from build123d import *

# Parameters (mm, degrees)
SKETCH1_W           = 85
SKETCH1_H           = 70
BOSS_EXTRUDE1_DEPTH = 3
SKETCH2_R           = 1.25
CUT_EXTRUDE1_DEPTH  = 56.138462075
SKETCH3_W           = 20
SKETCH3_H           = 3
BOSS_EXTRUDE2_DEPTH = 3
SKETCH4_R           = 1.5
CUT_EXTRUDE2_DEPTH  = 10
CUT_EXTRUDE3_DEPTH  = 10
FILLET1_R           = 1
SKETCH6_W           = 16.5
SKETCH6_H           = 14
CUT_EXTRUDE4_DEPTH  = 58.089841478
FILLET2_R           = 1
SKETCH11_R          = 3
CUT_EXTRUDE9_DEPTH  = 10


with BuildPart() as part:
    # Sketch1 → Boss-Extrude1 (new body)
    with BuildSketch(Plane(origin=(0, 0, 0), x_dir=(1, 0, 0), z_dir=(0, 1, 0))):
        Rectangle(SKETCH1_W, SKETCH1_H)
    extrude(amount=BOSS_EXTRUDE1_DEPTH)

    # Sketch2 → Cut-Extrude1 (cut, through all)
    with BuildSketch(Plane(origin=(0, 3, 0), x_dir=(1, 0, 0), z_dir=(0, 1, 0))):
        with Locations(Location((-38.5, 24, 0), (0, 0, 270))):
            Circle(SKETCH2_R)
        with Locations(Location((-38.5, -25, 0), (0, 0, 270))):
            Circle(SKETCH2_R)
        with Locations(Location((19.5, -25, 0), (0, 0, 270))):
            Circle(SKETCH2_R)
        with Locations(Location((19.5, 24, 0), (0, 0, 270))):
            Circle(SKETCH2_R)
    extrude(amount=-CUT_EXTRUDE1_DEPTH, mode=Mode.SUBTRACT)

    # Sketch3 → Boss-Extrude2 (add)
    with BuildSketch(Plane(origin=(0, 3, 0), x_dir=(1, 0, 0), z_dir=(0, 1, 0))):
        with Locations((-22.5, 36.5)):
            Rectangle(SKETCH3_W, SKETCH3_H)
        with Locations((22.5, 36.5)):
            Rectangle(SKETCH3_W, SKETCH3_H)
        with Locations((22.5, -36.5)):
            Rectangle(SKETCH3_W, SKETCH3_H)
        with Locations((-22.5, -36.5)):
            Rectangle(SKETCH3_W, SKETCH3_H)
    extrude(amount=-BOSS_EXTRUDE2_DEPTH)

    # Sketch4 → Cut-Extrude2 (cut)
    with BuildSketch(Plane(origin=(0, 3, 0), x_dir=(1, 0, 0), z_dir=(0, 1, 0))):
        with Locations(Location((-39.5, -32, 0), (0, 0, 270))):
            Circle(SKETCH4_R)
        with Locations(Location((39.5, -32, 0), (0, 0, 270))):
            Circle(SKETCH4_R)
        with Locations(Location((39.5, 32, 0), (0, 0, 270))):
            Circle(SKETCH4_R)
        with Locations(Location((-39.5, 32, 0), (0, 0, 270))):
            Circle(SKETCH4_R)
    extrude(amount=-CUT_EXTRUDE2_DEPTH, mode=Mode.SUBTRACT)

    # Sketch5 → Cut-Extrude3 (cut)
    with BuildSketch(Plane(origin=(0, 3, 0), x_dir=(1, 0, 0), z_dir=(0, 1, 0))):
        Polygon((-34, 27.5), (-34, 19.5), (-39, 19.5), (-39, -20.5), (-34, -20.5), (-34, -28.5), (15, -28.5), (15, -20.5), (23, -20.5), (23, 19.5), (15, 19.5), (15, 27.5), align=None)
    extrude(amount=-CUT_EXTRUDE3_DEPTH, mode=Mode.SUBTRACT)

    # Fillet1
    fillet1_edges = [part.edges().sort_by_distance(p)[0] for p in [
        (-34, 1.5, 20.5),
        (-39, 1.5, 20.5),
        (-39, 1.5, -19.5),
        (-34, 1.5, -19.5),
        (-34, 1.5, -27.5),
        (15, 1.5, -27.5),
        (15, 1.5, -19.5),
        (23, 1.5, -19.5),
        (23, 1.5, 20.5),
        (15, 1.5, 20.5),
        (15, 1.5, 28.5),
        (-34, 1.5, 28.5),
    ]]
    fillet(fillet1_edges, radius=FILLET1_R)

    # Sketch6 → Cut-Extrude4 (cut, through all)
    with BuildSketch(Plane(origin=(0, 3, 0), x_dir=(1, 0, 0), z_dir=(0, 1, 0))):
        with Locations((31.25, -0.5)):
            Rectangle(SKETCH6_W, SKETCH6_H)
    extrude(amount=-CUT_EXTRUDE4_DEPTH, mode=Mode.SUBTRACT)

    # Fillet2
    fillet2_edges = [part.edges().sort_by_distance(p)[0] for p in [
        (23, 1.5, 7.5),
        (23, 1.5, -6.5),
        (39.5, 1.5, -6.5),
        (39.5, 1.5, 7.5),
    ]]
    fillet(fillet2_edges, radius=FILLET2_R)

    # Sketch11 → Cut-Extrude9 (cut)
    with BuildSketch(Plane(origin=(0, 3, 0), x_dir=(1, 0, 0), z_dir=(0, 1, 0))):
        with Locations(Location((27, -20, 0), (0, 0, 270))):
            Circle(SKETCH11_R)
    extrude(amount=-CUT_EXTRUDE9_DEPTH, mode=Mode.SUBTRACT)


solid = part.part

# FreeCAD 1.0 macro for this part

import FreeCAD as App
import Part
import Sketcher

V = App.Vector
Q = App.Units.Quantity


def edges_at(feature, points):
    """Names of the edges that pass closest to the given points."""
    edges = feature.Shape.Edges
    near = lambda p: min(range(len(edges)), key=lambda i: edges[i].distToShape(Part.Vertex(*p))[0])
    return sorted({f"Edge{near(p) + 1}" for p in points})

doc = App.newDocument("Part")
params = doc.addObject("Spreadsheet::Sheet", "Params")
for row, (alias, value) in enumerate([
    ("sketch1_width", "85 mm"),
    ("sketch1_height", "70 mm"),
    ("pad1_length", "3 mm"),
    ("sketch2_diameter", "2.5 mm"),
    ("sketch3_width", "20 mm"),
    ("sketch3_height", "3 mm"),
    ("pad2_length", "3 mm"),
    ("sketch4_diameter", "3 mm"),
    ("pocket2_length", "10 mm"),
    ("sketch5_width", "5 mm"),
    ("sketch5_width2", "49 mm"),
    ("sketch5_width3", "8 mm"),
    ("sketch5_height", "40 mm"),
    ("pocket3_length", "10 mm"),
    ("fillet_radius", "1 mm"),
    ("sketch6_height", "14 mm"),
    ("sketch6_width", "16.5 mm"),
    ("fillet2_radius", "1 mm"),
    ("sketch7_diameter", "6 mm"),
    ("pocket5_length", "10 mm"),
], start=1):
    params.set(f"A{row}", alias)
    params.set(f"B{row}", "=" + value)
    params.setAlias(f"B{row}", alias)

body = doc.addObject("PartDesign::Body", "Body")

sketch1 = body.newObject("Sketcher::SketchObject", "Sketch")
sketch1.AttachmentSupport = (doc.getObject("XZ_Plane"), [""])
sketch1.MapMode = "FlatFace"
sketch1.addGeometry([
    Part.LineSegment(V(-42, -35, 0), V(-42, 35, 0)),
    Part.LineSegment(V(-42, 35, 0), V(42, 35, 0)),
    Part.LineSegment(V(42, 35, 0), V(42, -35, 0)),
    Part.LineSegment(V(42, -35, 0), V(-42, -35, 0)),
], False)
sketch1.addConstraint([
    Sketcher.Constraint("Coincident", 0, 2, 1, 1),
    Sketcher.Constraint("Coincident", 1, 2, 2, 1),
    Sketcher.Constraint("Coincident", 2, 2, 3, 1),
    Sketcher.Constraint("Coincident", 3, 2, 0, 1),
    Sketcher.Constraint("Vertical", 0),
    Sketcher.Constraint("Horizontal", 1),
    Sketcher.Constraint("Vertical", 2),
    Sketcher.Constraint("Horizontal", 3),
    Sketcher.Constraint("Symmetric", 0, 2, 2, 2, -1, 1),
    Sketcher.Constraint("DistanceX", 1, 1, 1, 2, Q("85 mm")),
    Sketcher.Constraint("DistanceY", 0, 1, 0, 2, Q("70 mm")),
])
sketch1.setExpression("Constraints[9]", "Params.sketch1_width")
sketch1.setExpression("Constraints[10]", "Params.sketch1_height")
pad1 = body.newObject("PartDesign::Pad", "Pad")
pad1.Profile = sketch1
pad1.setExpression("Length", "Params.pad1_length")
pad1.Reversed = True

sketch2 = body.newObject("Sketcher::SketchObject", "Sketch001")
sketch2.AttachmentSupport = (doc.getObject("XZ_Plane"), [""])
sketch2.MapMode = "FlatFace"
sketch2.AttachmentOffset = App.Placement(V(0, 0, -3), App.Rotation())
sketch2.addGeometry([
    Part.Circle(V(-38.5, -24, 0), V(0, 0, 1), 1.2),
    Part.Circle(V(-38.5, 25, 0), V(0, 0, 1), 1.2),
    Part.Circle(V(19.5, 25, 0), V(0, 0, 1), 1.2),
    Part.Circle(V(19.5, -24, 0), V(0, 0, 1), 1.2),
], False)
sketch2.addConstraint([
    Sketcher.Constraint("Equal", 0, 1),
    Sketcher.Constraint("Equal", 1, 2),
    Sketcher.Constraint("Equal", 2, 3),
    Sketcher.Constraint("Horizontal", 1, 3, 2, 3),
    Sketcher.Constraint("Horizontal", 0, 3, 3, 3),
    Sketcher.Constraint("Vertical", 0, 3, 1, 3),
    Sketcher.Constraint("Vertical", 2, 3, 3, 3),
    Sketcher.Constraint("Diameter", 0, Q("2.5 mm")),
    Sketcher.Constraint("DistanceY", 0, 3, -1, 1, Q("24 mm")),
    Sketcher.Constraint("DistanceY", -1, 1, 1, 3, Q("25 mm")),
    Sketcher.Constraint("DistanceX", 1, 3, 2, 3, Q("58 mm")),
    Sketcher.Constraint("DistanceX", 0, 3, -1, 1, Q("38.5 mm")),
])
sketch2.setExpression("Constraints[7]", "Params.sketch2_diameter")
pocket1 = body.newObject("PartDesign::Pocket", "Pocket")
pocket1.Profile = sketch2
pocket1.Type = "ThroughAll"
pocket1.Reversed = True

sketch3 = body.newObject("Sketcher::SketchObject", "Sketch002")
sketch3.AttachmentSupport = (doc.getObject("XZ_Plane"), [""])
sketch3.MapMode = "FlatFace"
sketch3.AttachmentOffset = App.Placement(V(0, 0, -3), App.Rotation())
sketch3.addGeometry([
    Part.LineSegment(V(-32.5, -38, 0), V(-32.5, -35, 0)),
    Part.LineSegment(V(-32.5, -35, 0), V(-12.5, -35, 0)),
    Part.LineSegment(V(-12.5, -35, 0), V(-12.5, -38, 0)),
    Part.LineSegment(V(-12.5, -38, 0), V(-32.5, -38, 0)),
    Part.LineSegment(V(12.5, -38, 0), V(12.5, -35, 0)),
    Part.LineSegment(V(12.5, -35, 0), V(32.5, -35, 0)),
    Part.LineSegment(V(32.5, -35, 0), V(32.5, -38, 0)),
    Part.LineSegment(V(32.5, -38, 0), V(12.5, -38, 0)),
    Part.LineSegment(V(12.5, 35, 0), V(12.5, 38, 0)),
    Part.LineSegment(V(12.5, 38, 0), V(32.5, 38, 0)),
    Part.LineSegment(V(32.5, 38, 0), V(32.5, 35, 0)),
    Part.LineSegment(V(32.5, 35, 0), V(12.5, 35, 0)),
    Part.LineSegment(V(-32.5, 35, 0), V(-32.5, 38, 0)),
    Part.LineSegment(V(-32.5, 38, 0), V(-12.5, 38, 0)),
    Part.LineSegment(V(-12.5, 38, 0), V(-12.5, 35, 0)),
    Part.LineSegment(V(-12.5, 35, 0), V(-32.5, 35, 0)),
], False)
sketch3.addConstraint([
    Sketcher.Constraint("Coincident", 0, 2, 1, 1),
    Sketcher.Constraint("Coincident", 1, 2, 2, 1),
    Sketcher.Constraint("Coincident", 2, 2, 3, 1),
    Sketcher.Constraint("Coincident", 3, 2, 0, 1),
    Sketcher.Constraint("Coincident", 4, 2, 5, 1),
    Sketcher.Constraint("Coincident", 5, 2, 6, 1),
    Sketcher.Constraint("Coincident", 6, 2, 7, 1),
    Sketcher.Constraint("Coincident", 7, 2, 4, 1),
    Sketcher.Constraint("Coincident", 8, 2, 9, 1),
    Sketcher.Constraint("Coincident", 9, 2, 10, 1),
    Sketcher.Constraint("Coincident", 10, 2, 11, 1),
    Sketcher.Constraint("Coincident", 11, 2, 8, 1),
    Sketcher.Constraint("Coincident", 12, 2, 13, 1),
    Sketcher.Constraint("Coincident", 13, 2, 14, 1),
    Sketcher.Constraint("Coincident", 14, 2, 15, 1),
    Sketcher.Constraint("Coincident", 15, 2, 12, 1),
    Sketcher.Constraint("Vertical", 0),
    Sketcher.Constraint("Horizontal", 1),
    Sketcher.Constraint("Vertical", 2),
    Sketcher.Constraint("Horizontal", 3),
    Sketcher.Constraint("Vertical", 4),
    Sketcher.Constraint("Horizontal", 5),
    Sketcher.Constraint("Vertical", 6),
    Sketcher.Constraint("Horizontal", 7),
    Sketcher.Constraint("Vertical", 8),
    Sketcher.Constraint("Horizontal", 9),
    Sketcher.Constraint("Vertical", 10),
    Sketcher.Constraint("Horizontal", 11),
    Sketcher.Constraint("Vertical", 12),
    Sketcher.Constraint("Horizontal", 13),
    Sketcher.Constraint("Vertical", 14),
    Sketcher.Constraint("Horizontal", 15),
    Sketcher.Constraint("Symmetric", 2, 2, 8, 2, -1, 1),
    Sketcher.Constraint("Symmetric", 0, 2, 10, 2, -1, 1),
    Sketcher.Constraint("Symmetric", 6, 2, 12, 2, -1, 1),
    Sketcher.Constraint("Symmetric", 4, 2, 14, 2, -1, 1),
    Sketcher.Constraint("Symmetric", 1, 2, 4, 2, -2),
    Sketcher.Constraint("Symmetric", 3, 2, 6, 2, -2),
    Sketcher.Constraint("DistanceX", 1, 1, 1, 2, Q("20 mm")),
    Sketcher.Constraint("DistanceY", 0, 1, 0, 2, Q("3 mm")),
    Sketcher.Constraint("DistanceY", 0, 2, -1, 1, Q("35 mm")),
    Sketcher.Constraint("DistanceX", 1, 2, 4, 2, Q("25 mm")),
])
sketch3.setExpression("Constraints[38]", "Params.sketch3_width")
sketch3.setExpression("Constraints[39]", "Params.sketch3_height")
pad2 = body.newObject("PartDesign::Pad", "Pad001")
pad2.Profile = sketch3
pad2.setExpression("Length", "Params.pad2_length")

sketch4 = body.newObject("Sketcher::SketchObject", "Sketch003")
sketch4.AttachmentSupport = (doc.getObject("XZ_Plane"), [""])
sketch4.MapMode = "FlatFace"
sketch4.AttachmentOffset = App.Placement(V(0, 0, -3), App.Rotation())
sketch4.addGeometry([
    Part.Circle(V(-39.5, 32, 0), V(0, 0, 1), 1.5),
    Part.Circle(V(39.5, 32, 0), V(0, 0, 1), 1.5),
    Part.Circle(V(39.5, -32, 0), V(0, 0, 1), 1.5),
    Part.Circle(V(-39.5, -32, 0), V(0, 0, 1), 1.5),
], False)
sketch4.addConstraint([
    Sketcher.Constraint("Equal", 0, 1),
    Sketcher.Constraint("Equal", 1, 2),
    Sketcher.Constraint("Equal", 2, 3),
    Sketcher.Constraint("Symmetric", 0, 3, 2, 3, -1, 1),
    Sketcher.Constraint("Symmetric", 1, 3, 3, 3, -1, 1),
    Sketcher.Constraint("Symmetric", 0, 3, 1, 3, -2),
    Sketcher.Constraint("Diameter", 0, Q("3 mm")),
    Sketcher.Constraint("DistanceY", -1, 1, 0, 3, Q("32 mm")),
    Sketcher.Constraint("DistanceX", 0, 3, 1, 3, Q("79 mm")),
])
sketch4.setExpression("Constraints[6]", "Params.sketch4_diameter")
pocket2 = body.newObject("PartDesign::Pocket", "Pocket001")
pocket2.Profile = sketch4
pocket2.setExpression("Length", "Params.pocket2_length")
pocket2.Reversed = True

sketch5 = body.newObject("Sketcher::SketchObject", "Sketch004")
sketch5.AttachmentSupport = (doc.getObject("XZ_Plane"), [""])
sketch5.MapMode = "FlatFace"
sketch5.AttachmentOffset = App.Placement(V(0, 0, -3), App.Rotation())
sketch5.addGeometry([
    Part.LineSegment(V(-34, -28, 0), V(-34, -20, 0)),
    Part.LineSegment(V(-34, -20, 0), V(-39, -20, 0)),
    Part.LineSegment(V(-39, -20, 0), V(-39, 20, 0)),
    Part.LineSegment(V(-39, 20, 0), V(-34, 20, 0)),
    Part.LineSegment(V(-34, 20, 0), V(-34, 28, 0)),
    Part.LineSegment(V(-34, 28, 0), V(15, 28, 0)),
    Part.LineSegment(V(15, 28, 0), V(15, 20, 0)),
    Part.LineSegment(V(15, 20, 0), V(23, 20, 0)),
    Part.LineSegment(V(23, 20, 0), V(23, -20, 0)),
    Part.LineSegment(V(23, -20, 0), V(15, -20, 0)),
    Part.LineSegment(V(15, -20, 0), V(15, -28, 0)),
    Part.LineSegment(V(15, -28, 0), V(-34, -28, 0)),
], False)
sketch5.addConstraint([
    Sketcher.Constraint("Coincident", 0, 2, 1, 1),
    Sketcher.Constraint("Coincident", 1, 2, 2, 1),
    Sketcher.Constraint("Coincident", 2, 2, 3, 1),
    Sketcher.Constraint("Coincident", 3, 2, 4, 1),
    Sketcher.Constraint("Coincident", 4, 2, 5, 1),
    Sketcher.Constraint("Coincident", 5, 2, 6, 1),
    Sketcher.Constraint("Coincident", 6, 2, 7, 1),
    Sketcher.Constraint("Coincident", 7, 2, 8, 1),
    Sketcher.Constraint("Coincident", 8, 2, 9, 1),
    Sketcher.Constraint("Coincident", 9, 2, 10, 1),
    Sketcher.Constraint("Coincident", 10, 2, 11, 1),
    Sketcher.Constraint("Coincident", 11, 2, 0, 1),
    Sketcher.Constraint("Vertical", 0),
    Sketcher.Constraint("Horizontal", 1),
    Sketcher.Constraint("Vertical", 2),
    Sketcher.Constraint("Horizontal", 3),
    Sketcher.Constraint("Vertical", 4),
    Sketcher.Constraint("Horizontal", 5),
    Sketcher.Constraint("Vertical", 6),
    Sketcher.Constraint("Horizontal", 7),
    Sketcher.Constraint("Vertical", 8),
    Sketcher.Constraint("Horizontal", 9),
    Sketcher.Constraint("Vertical", 10),
    Sketcher.Constraint("Horizontal", 11),
    Sketcher.Constraint("Horizontal", 3, 2, 6, 2),
    Sketcher.Constraint("Horizontal", 1, 2, 8, 2),
    Sketcher.Constraint("Vertical", 0, 2, 3, 2),
    Sketcher.Constraint("Vertical", 6, 2, 9, 2),
    Sketcher.Constraint("Equal", 9, 0),
    Sketcher.Constraint("Equal", 0, 4),
    Sketcher.Constraint("DistanceX", 1, 2, 1, 1, Q("5 mm")),
    Sketcher.Constraint("DistanceX", 5, 1, 5, 2, Q("49 mm")),
    Sketcher.Constraint("DistanceX", 7, 1, 7, 2, Q("8 mm")),
    Sketcher.Constraint("DistanceY", 2, 1, 2, 2, Q("40 mm")),
    Sketcher.Constraint("DistanceX", 0, 2, -1, 1, Q("34 mm")),
    Sketcher.Constraint("DistanceY", 0, 2, -1, 1, Q("19.5 mm")),
])
sketch5.setExpression("Constraints[30]", "Params.sketch5_width")
sketch5.setExpression("Constraints[31]", "Params.sketch5_width2")
sketch5.setExpression("Constraints[32]", "Params.sketch5_width3")
sketch5.setExpression("Constraints[33]", "Params.sketch5_height")
pocket3 = body.newObject("PartDesign::Pocket", "Pocket002")
pocket3.Profile = sketch5
pocket3.setExpression("Length", "Params.pocket3_length")
pocket3.Reversed = True
doc.recompute()

fillet = body.newObject("PartDesign::Fillet", "Fillet")
fillet.Base = (pocket3, edges_at(pocket3, [
    (-34, 1.5, 20.5),
    (-39, 1.5, 20.5),
    (-39, 1.5, -19.5),
    (-34, 1.5, -19.5),
    (-34, 1.5, -27.5),
    (15, 1.5, -27.5),
    (15, 1.5, -19.5),
    (23, 1.5, -19.5),
    (23, 1.5, 20.5),
    (15, 1.5, 20.5),
    (15, 1.5, 28.5),
    (-34, 1.5, 28.5),
]))
fillet.setExpression("Radius", "Params.fillet_radius")

sketch6 = body.newObject("Sketcher::SketchObject", "Sketch005")
sketch6.AttachmentSupport = (doc.getObject("XZ_Plane"), [""])
sketch6.MapMode = "FlatFace"
sketch6.AttachmentOffset = App.Placement(V(0, 0, -3), App.Rotation())
sketch6.addGeometry([
    Part.LineSegment(V(23, -6, 0), V(23, 8, 0)),
    Part.LineSegment(V(23, 8, 0), V(40, 8, 0)),
    Part.LineSegment(V(40, 8, 0), V(40, -6, 0)),
    Part.LineSegment(V(40, -6, 0), V(23, -6, 0)),
], False)
sketch6.addConstraint([
    Sketcher.Constraint("Coincident", 0, 2, 1, 1),
    Sketcher.Constraint("Coincident", 1, 2, 2, 1),
    Sketcher.Constraint("Coincident", 2, 2, 3, 1),
    Sketcher.Constraint("Coincident", 3, 2, 0, 1),
    Sketcher.Constraint("Vertical", 0),
    Sketcher.Constraint("Horizontal", 1),
    Sketcher.Constraint("Vertical", 2),
    Sketcher.Constraint("Horizontal", 3),
    Sketcher.Constraint("DistanceY", 0, 1, 0, 2, Q("14 mm")),
    Sketcher.Constraint("DistanceX", 1, 1, 1, 2, Q("16.5 mm")),
    Sketcher.Constraint("DistanceX", -1, 1, 0, 2, Q("23 mm")),
    Sketcher.Constraint("DistanceY", -1, 1, 0, 2, Q("7.5 mm")),
])
sketch6.setExpression("Constraints[8]", "Params.sketch6_height")
sketch6.setExpression("Constraints[9]", "Params.sketch6_width")
pocket4 = body.newObject("PartDesign::Pocket", "Pocket003")
pocket4.Profile = sketch6
pocket4.Type = "ThroughAll"
pocket4.Reversed = True
doc.recompute()

fillet2 = body.newObject("PartDesign::Fillet", "Fillet001")
fillet2.Base = (pocket4, edges_at(pocket4, [
    (23, 1.5, 7.5),
    (23, 1.5, -6.5),
    (39.5, 1.5, -6.5),
    (39.5, 1.5, 7.5),
]))
fillet2.setExpression("Radius", "Params.fillet2_radius")

sketch7 = body.newObject("Sketcher::SketchObject", "Sketch006")
sketch7.AttachmentSupport = (doc.getObject("XZ_Plane"), [""])
sketch7.MapMode = "FlatFace"
sketch7.AttachmentOffset = App.Placement(V(0, 0, -3), App.Rotation())
sketch7.addGeometry(Part.Circle(V(27, 20, 0), V(0, 0, 1), 3), False)
sketch7.addConstraint([
    Sketcher.Constraint("Diameter", 0, Q("6 mm")),
    Sketcher.Constraint("DistanceX", -1, 1, 0, 3, Q("27 mm")),
    Sketcher.Constraint("DistanceY", -1, 1, 0, 3, Q("20 mm")),
])
sketch7.setExpression("Constraints[0]", "Params.sketch7_diameter")
pocket5 = body.newObject("PartDesign::Pocket", "Pocket004")
pocket5.Profile = sketch7
pocket5.setExpression("Length", "Params.pocket5_length")
pocket5.Reversed = True

doc.recompute()
